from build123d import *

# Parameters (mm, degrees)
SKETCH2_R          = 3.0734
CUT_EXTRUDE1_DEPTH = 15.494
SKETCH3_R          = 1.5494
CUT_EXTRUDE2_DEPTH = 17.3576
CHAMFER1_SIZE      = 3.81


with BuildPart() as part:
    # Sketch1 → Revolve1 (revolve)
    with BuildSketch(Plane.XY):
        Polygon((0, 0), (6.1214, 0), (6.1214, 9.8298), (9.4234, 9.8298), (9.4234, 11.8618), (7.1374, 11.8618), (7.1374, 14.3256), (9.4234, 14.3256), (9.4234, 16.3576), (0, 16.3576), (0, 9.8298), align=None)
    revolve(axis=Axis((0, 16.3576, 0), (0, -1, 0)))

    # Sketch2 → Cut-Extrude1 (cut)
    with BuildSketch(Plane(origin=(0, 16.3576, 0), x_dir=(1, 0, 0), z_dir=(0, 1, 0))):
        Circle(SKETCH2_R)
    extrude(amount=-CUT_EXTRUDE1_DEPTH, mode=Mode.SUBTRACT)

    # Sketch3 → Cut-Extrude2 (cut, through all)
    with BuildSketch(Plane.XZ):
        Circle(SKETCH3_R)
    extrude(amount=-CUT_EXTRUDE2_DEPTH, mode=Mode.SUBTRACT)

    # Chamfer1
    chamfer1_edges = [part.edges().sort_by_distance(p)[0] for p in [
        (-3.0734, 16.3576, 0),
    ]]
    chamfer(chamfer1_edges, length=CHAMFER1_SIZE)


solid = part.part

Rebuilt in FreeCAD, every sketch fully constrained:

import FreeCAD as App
import Part
import Sketcher

V = App.Vector
Q = App.Units.Quantity


def edges_at(feature, points):
    """Names of the edges that pass closest to the given points."""
    edges = feature.Shape.Edges
    near = lambda p: min(range(len(edges)), key=lambda i: edges[i].distToShape(Part.Vertex(*p))[0])
    return sorted({f"Edge{near(p) + 1}" for p in points})

doc = App.newDocument("Part")
body = doc.addObject("PartDesign::Body", "Body")

sketch1 = body.newObject("Sketcher::SketchObject", "Sketch")
sketch1.AttachmentSupport = (doc.getObject("XY_Plane"), [""])
sketch1.MapMode = "FlatFace"
sketch1.addGeometry([
    Part.LineSegment(V(0, 0, 0), V(6.1, 0, 0)),
    Part.LineSegment(V(6.1, 0, 0), V(6.1, 9.8, 0)),
    Part.LineSegment(V(6.1, 9.8, 0), V(9.4, 9.8, 0)),
    Part.LineSegment(V(9.4, 9.8, 0), V(9.4, 11.9, 0)),
    Part.LineSegment(V(9.4, 11.9, 0), V(7.1, 11.9, 0)),
    Part.LineSegment(V(7.1, 11.9, 0), V(7.1, 14.3, 0)),
    Part.LineSegment(V(7.1, 14.3, 0), V(9.4, 14.3, 0)),
    Part.LineSegment(V(9.4, 14.3, 0), V(9.4, 16.4, 0)),
    Part.LineSegment(V(9.4, 16.4, 0), V(0, 16.4, 0)),
    Part.LineSegment(V(0, 16.4, 0), V(0, 0, 0)),
], False)
sketch1.addConstraint([
    Sketcher.Constraint("Coincident", 0, 2, 1, 1),
    Sketcher.Constraint("Coincident", 1, 2, 2, 1),
    Sketcher.Constraint("Coincident", 2, 2, 3, 1),
    Sketcher.Constraint("Coincident", 3, 2, 4, 1),
    Sketcher.Constraint("Coincident", 4, 2, 5, 1),
    Sketcher.Constraint("Coincident", 5, 2, 6, 1),
    Sketcher.Constraint("Coincident", 6, 2, 7, 1),
    Sketcher.Constraint("Coincident", 7, 2, 8, 1),
    Sketcher.Constraint("Coincident", 8, 2, 9, 1),
    Sketcher.Constraint("Coincident", 9, 2, 0, 1),
    Sketcher.Constraint("Horizontal", 0),
    Sketcher.Constraint("Vertical", 1),
    Sketcher.Constraint("Horizontal", 2),
    Sketcher.Constraint("Vertical", 3),
    Sketcher.Constraint("Horizontal", 4),
    Sketcher.Constraint("Vertical", 5),
    Sketcher.Constraint("Horizontal", 6),
    Sketcher.Constraint("Vertical", 7),
    Sketcher.Constraint("Horizontal", 8),
    Sketcher.Constraint("Vertical", 9),
    Sketcher.Constraint("Coincident", 9, 2, -1, 1),
    Sketcher.Constraint("Vertical", 3, 2, 6, 2),
    Sketcher.Constraint("Equal", 3, 7),
    Sketcher.Constraint("DistanceX", 2, 1, 2, 2, Q("0.13 in")),
    Sketcher.Constraint("DistanceX", 4, 2, 4, 1, Q("0.09 in")),
    Sketcher.Constraint("DistanceY", 3, 1, 3, 2, Q("0.08 in")),
    Sketcher.Constraint("DistanceX", 0, 1, 0, 2, Q("0.241 in")),
    Sketcher.Constraint("DistanceY", 1, 1, 1, 2, Q("0.387 in")),
    Sketcher.Constraint("DistanceY", 5, 1, 5, 2, Q("0.097 in")),
])
revolution = body.newObject("PartDesign::Revolution", "Revolution")
revolution.Profile = sketch1
revolution.ReferenceAxis = (sketch1, ["V_Axis"])
revolution.Angle = 360

sketch2 = body.newObject("Sketcher::SketchObject", "Sketch001")
sketch2.AttachmentSupport = (doc.getObject("XZ_Plane"), [""])
sketch2.MapMode = "FlatFace"
sketch2.AttachmentOffset = App.Placement(V(0, 0, -0.644 * 25.4), App.Rotation())
sketch2.addGeometry(Part.Circle(V(0, 0, 0), V(0, 0, 1), 3.1), False)
sketch2.addConstraint([
    Sketcher.Constraint("Coincident", 0, 3, -1, 1),
    Sketcher.Constraint("Diameter", 0, Q("0.242 in")),
])
pocket1 = body.newObject("PartDesign::Pocket", "Pocket")
pocket1.Profile = sketch2
pocket1.Length = Q("0.61 in")
pocket1.Reversed = True

sketch3 = body.newObject("Sketcher::SketchObject", "Sketch002")
sketch3.AttachmentSupport = (doc.getObject("XZ_Plane"), [""])
sketch3.MapMode = "FlatFace"
sketch3.addGeometry(Part.Circle(V(0, 0, 0), V(0, 0, 1), 1.5), False)
sketch3.addConstraint([
    Sketcher.Constraint("Coincident", 0, 3, -1, 1),
    Sketcher.Constraint("Diameter", 0, Q("0.122 in")),
])
pocket2 = body.newObject("PartDesign::Pocket", "Pocket001")
pocket2.Profile = sketch3
pocket2.Type = "ThroughAll"
doc.recompute()

chamfer = body.newObject("PartDesign::Chamfer", "Chamfer")
chamfer.Base = (pocket2, edges_at(pocket2, [(-3.073, 16.358, 0)]))
chamfer.Size = Q("0.15 in")

doc.recompute()
